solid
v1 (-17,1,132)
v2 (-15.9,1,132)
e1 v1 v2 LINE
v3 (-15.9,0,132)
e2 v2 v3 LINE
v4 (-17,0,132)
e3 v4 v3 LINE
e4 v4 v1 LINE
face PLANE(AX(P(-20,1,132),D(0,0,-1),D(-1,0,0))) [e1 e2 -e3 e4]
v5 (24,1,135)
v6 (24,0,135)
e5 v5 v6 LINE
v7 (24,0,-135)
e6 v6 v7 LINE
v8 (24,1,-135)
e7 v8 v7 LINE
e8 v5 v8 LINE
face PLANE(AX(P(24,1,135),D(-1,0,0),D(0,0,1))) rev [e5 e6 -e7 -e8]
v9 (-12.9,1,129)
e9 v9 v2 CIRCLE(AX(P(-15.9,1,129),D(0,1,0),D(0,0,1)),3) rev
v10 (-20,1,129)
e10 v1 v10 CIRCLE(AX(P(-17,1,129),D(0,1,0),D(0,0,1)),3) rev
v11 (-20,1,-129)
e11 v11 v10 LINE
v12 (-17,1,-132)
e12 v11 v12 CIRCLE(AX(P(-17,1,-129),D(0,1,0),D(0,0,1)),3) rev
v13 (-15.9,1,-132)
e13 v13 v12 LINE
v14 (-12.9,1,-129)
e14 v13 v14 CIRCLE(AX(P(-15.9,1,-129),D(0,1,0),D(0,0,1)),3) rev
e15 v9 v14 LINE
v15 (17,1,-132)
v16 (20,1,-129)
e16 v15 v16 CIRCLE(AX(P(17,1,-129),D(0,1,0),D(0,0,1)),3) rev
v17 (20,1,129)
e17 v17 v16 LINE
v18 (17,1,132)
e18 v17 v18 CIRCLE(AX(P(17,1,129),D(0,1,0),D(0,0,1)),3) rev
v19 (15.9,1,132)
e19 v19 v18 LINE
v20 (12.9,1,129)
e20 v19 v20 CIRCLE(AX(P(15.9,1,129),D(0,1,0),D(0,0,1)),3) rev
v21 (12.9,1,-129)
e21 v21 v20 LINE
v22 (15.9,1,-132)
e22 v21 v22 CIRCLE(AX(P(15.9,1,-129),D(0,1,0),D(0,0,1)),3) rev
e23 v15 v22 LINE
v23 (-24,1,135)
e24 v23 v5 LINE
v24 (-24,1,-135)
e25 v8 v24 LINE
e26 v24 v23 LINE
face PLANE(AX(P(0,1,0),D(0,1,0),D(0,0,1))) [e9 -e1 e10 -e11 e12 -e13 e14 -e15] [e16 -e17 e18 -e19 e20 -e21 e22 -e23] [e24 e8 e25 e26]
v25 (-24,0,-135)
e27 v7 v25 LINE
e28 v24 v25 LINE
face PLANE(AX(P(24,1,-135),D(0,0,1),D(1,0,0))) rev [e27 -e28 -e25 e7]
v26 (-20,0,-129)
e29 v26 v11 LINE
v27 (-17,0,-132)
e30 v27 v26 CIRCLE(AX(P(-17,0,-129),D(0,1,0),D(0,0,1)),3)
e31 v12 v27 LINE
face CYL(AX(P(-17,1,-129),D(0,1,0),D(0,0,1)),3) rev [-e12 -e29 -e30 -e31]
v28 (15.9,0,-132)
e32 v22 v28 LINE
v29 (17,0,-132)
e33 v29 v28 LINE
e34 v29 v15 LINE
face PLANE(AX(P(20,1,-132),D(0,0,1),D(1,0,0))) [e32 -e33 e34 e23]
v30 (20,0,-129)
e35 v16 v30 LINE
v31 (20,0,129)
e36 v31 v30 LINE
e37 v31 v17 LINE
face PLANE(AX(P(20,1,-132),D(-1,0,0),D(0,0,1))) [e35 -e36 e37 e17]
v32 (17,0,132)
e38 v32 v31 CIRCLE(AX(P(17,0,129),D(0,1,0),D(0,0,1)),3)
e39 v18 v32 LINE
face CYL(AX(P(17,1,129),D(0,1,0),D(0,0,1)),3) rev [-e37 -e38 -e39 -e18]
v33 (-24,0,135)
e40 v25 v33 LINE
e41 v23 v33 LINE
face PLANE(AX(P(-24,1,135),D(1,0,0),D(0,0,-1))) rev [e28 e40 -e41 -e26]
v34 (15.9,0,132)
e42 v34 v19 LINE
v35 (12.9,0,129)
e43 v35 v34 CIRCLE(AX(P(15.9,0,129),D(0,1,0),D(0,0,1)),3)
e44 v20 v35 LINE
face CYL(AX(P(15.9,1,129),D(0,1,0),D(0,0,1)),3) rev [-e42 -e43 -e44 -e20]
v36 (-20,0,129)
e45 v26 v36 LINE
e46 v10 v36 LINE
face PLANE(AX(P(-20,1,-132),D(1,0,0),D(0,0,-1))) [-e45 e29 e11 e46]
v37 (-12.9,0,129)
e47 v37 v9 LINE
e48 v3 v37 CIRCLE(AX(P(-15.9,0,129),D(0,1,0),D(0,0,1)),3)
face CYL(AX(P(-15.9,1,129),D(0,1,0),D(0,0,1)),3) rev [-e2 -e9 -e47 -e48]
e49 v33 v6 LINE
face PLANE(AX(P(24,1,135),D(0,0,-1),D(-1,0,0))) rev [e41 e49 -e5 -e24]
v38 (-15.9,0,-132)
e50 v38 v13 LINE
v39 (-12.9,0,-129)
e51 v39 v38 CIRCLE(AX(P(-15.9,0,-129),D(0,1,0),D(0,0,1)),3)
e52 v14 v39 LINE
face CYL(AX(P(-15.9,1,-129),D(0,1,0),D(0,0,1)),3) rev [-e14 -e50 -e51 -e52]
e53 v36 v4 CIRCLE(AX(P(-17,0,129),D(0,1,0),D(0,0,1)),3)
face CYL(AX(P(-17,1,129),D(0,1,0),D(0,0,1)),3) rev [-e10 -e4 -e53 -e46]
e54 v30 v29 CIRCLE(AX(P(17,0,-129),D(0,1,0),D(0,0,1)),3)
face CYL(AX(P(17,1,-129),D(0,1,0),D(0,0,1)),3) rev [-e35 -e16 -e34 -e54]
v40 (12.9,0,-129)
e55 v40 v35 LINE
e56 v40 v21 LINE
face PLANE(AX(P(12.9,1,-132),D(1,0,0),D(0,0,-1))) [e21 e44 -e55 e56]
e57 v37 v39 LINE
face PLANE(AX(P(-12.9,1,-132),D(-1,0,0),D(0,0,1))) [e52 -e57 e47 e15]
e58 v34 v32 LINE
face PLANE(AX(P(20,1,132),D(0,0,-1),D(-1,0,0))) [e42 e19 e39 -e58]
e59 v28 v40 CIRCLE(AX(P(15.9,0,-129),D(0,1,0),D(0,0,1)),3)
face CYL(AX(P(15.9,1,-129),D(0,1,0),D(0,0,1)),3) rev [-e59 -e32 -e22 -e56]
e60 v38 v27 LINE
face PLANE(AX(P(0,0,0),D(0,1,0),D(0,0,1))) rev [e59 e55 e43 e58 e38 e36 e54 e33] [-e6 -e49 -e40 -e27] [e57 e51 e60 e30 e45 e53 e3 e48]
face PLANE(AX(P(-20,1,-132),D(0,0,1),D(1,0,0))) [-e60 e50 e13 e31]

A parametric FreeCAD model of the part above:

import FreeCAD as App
import Part
import Sketcher
Q = App.Units.Quantity


def edges_at(feature, points):
    """Names of the edges that pass closest to the given points."""
    edges = feature.Shape.Edges
    near = lambda p: min(range(len(edges)), key=lambda i: edges[i].distToShape(Part.Vertex(*p))[0])
    return sorted({f"Edge{near(p) + 1}" for p in points})

doc = App.newDocument("Part")
params = doc.addObject("Spreadsheet::Sheet", "Params")
for row, (alias, value) in enumerate([
    ("sketch1_width", "48 mm"),
    ("sketch1_height", "270 mm"),
    ("sketch1_height2", "264 mm"),
    ("sketch1_width2", "7.1 mm"),
    ("pad1_length", "1 mm"),
    ("fillet_radius", "3 mm"),
], start=1):
    params.set(f"A{row}", alias)
    params.set(f"B{row}", "=" + value)
    params.setAlias(f"B{row}", alias)

body = doc.addObject("PartDesign::Body", "Body")

# Sketch on XZ plane
sketch1 = doc.addObject("Sketcher::SketchObject", "Sketch")
body.addObject(sketch1)
sketch1.AttachmentSupport = (doc.XZ_Plane, [""])
sketch1.MapMode = "FlatFace"
sketch1.addGeometry([
    Part.LineSegment(App.Vector(-24, -135, 0), App.Vector(-24, 135, 0)),  # 0
    Part.LineSegment(App.Vector(-24, 135, 0), App.Vector(24, 135, 0)),  # 1
    Part.LineSegment(App.Vector(24, 135, 0), App.Vector(24, -135, 0)),  # 2
    Part.LineSegment(App.Vector(24, -135, 0), App.Vector(-24, -135, 0)),  # 3
    Part.LineSegment(App.Vector(-13, 132, 0), App.Vector(-20, 132, 0)),  # 4
    Part.LineSegment(App.Vector(-20, 132, 0), App.Vector(-20, -132, 0)),  # 5
    Part.LineSegment(App.Vector(-20, -132, 0), App.Vector(-13, -132, 0)),  # 6
    Part.LineSegment(App.Vector(-13, -132, 0), App.Vector(-13, 132, 0)),  # 7
    Part.LineSegment(App.Vector(20, 132, 0), App.Vector(13, 132, 0)),  # 8
    Part.LineSegment(App.Vector(13, 132, 0), App.Vector(13, -132, 0)),  # 9
    Part.LineSegment(App.Vector(13, -132, 0), App.Vector(20, -132, 0)),  # 10
    Part.LineSegment(App.Vector(20, -132, 0), App.Vector(20, 132, 0)),  # 11
], False)
sketch1.addConstraint([
    Sketcher.Constraint("Coincident", 0, 2, 1, 1),
    Sketcher.Constraint("Coincident", 1, 2, 2, 1),
    Sketcher.Constraint("Coincident", 2, 2, 3, 1),
    Sketcher.Constraint("Coincident", 3, 2, 0, 1),
    Sketcher.Constraint("Coincident", 4, 2, 5, 1),
    Sketcher.Constraint("Coincident", 5, 2, 6, 1),
    Sketcher.Constraint("Coincident", 6, 2, 7, 1),
    Sketcher.Constraint("Coincident", 7, 2, 4, 1),
    Sketcher.Constraint("Coincident", 8, 2, 9, 1),
    Sketcher.Constraint("Coincident", 9, 2, 10, 1),
    Sketcher.Constraint("Coincident", 10, 2, 11, 1),
    Sketcher.Constraint("Coincident", 11, 2, 8, 1),
    Sketcher.Constraint("Vertical", 0),
    Sketcher.Constraint("Horizontal", 1),
    Sketcher.Constraint("Vertical", 2),
    Sketcher.Constraint("Horizontal", 3),
    Sketcher.Constraint("Horizontal", 4),
    Sketcher.Constraint("Vertical", 5),
    Sketcher.Constraint("Horizontal", 6),
    Sketcher.Constraint("Vertical", 7),
    Sketcher.Constraint("Horizontal", 8),
    Sketcher.Constraint("Vertical", 9),
    Sketcher.Constraint("Horizontal", 10),
    Sketcher.Constraint("Vertical", 11),
    Sketcher.Constraint("Symmetric", 0, 2, 2, 2, -1, 1),
    Sketcher.Constraint("Symmetric", 6, 2, 8, 2, -1, 1),
    Sketcher.Constraint("Symmetric", 4, 2, 10, 2, -1, 1),
    Sketcher.Constraint("Horizontal", 7, 2, 8, 2),
    Sketcher.Constraint("DistanceX", 1, 1, 1, 2, Q("48 mm")),
    Sketcher.Constraint("DistanceY", 0, 1, 0, 2, Q("270 mm")),
    Sketcher.Constraint("DistanceY", 5, 2, 5, 1, Q("264 mm")),
    Sketcher.Constraint("DistanceX", 4, 2, 4, 1, Q("7.1 mm")),
    Sketcher.Constraint("DistanceX", 4, 2, -1, 1, Q("20 mm")),
])
sketch1.setExpression("Constraints[28]", "Params.sketch1_width")
sketch1.setExpression("Constraints[29]", "Params.sketch1_height")
sketch1.setExpression("Constraints[30]", "Params.sketch1_height2")
sketch1.setExpression("Constraints[31]", "Params.sketch1_width2")
pad1 = doc.addObject("PartDesign::Pad", "Pad")
body.addObject(pad1)
pad1.Profile = sketch1
pad1.setExpression("Length", "Params.pad1_length")
pad1.Reversed = True
doc.recompute()

fillet = doc.addObject("PartDesign::Fillet", "Fillet")
body.addObject(fillet)
fillet.Base = (pad1, edges_at(pad1, [
    (-20, 0.5, -132),
    (-20, 0.5, 132),
    (-12.9, 0.5, 132),
    (-12.9, 0.5, -132),
    (20, 0.5, 132),
    (20, 0.5, -132),
    (12.9, 0.5, -132),
    (12.9, 0.5, 132),
]))
fillet.setExpression("Radius", "Params.fillet_radius")

doc.recompute()
